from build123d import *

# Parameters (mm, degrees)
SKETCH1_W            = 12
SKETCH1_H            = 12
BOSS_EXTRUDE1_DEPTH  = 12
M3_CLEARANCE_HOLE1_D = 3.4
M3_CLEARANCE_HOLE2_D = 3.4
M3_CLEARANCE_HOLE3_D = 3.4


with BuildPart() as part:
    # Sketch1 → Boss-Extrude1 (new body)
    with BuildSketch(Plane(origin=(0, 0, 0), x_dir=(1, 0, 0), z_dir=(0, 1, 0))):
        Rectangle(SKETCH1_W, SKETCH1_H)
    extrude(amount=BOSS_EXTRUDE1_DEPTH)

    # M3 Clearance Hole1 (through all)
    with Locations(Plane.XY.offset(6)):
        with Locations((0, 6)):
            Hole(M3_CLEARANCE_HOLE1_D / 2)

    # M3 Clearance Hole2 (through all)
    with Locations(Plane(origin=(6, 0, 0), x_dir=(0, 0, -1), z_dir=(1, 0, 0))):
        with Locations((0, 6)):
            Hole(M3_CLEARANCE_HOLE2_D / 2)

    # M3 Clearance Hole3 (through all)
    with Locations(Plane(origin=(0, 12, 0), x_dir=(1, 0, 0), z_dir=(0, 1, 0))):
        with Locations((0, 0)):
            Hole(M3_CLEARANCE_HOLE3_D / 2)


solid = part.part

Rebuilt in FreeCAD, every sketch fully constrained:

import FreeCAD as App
import Part
import Sketcher

V = App.Vector
Q = App.Units.Quantity


def add_polygon(sketch, points):
    """Adds a closed chain of lines whose ends are joined by coincident constraints."""
    first, n = sketch.GeometryCount, len(points)
    for a, b in zip(points, points[1:] + points[:1]):
        sketch.addGeometry(Part.LineSegment(App.Vector(*a, 0), App.Vector(*b, 0)), False)
    for i in range(n):
        sketch.addConstraint(Sketcher.Constraint("Coincident", first + i, 2, first + (i + 1) % n, 1))

doc = App.newDocument("Part")
params = doc.addObject("Spreadsheet::Sheet", "Params")
for row, (alias, value) in enumerate([
    ("sketch1_width", "12 mm"),
    ("pad1_length", "12 mm"),
    ("sketch2_diameter", "3.4 mm"),
    ("hole_diameter", "3.4 mm"),
    ("sketch3_diameter", "3.4 mm"),
    ("hole2_diameter", "3.4 mm"),
    ("sketch4_diameter", "3.4 mm"),
    ("hole3_diameter", "3.4 mm"),
], start=1):
    params.set(f"A{row}", alias)
    params.set(f"B{row}", "=" + value)
    params.setAlias(f"B{row}", alias)

body = doc.addObject("PartDesign::Body", "Body")

# Sketch on XZ plane
sketch1 = body.newObject("Sketcher::SketchObject", "Sketch")
sketch1.AttachmentSupport = (doc.getObject("XZ_Plane"), [""])
sketch1.MapMode = "FlatFace"
add_polygon(sketch1, [(-6, -6), (-6, 6), (6, 6), (6, -6)])  # lines 0-3
sketch1.addConstraint(Sketcher.Constraint("Vertical", 0))
sketch1.addConstraint(Sketcher.Constraint("Horizontal", 1))
sketch1.addConstraint(Sketcher.Constraint("Vertical", 2))
sketch1.addConstraint(Sketcher.Constraint("Horizontal", 3))
sketch1.addConstraint(Sketcher.Constraint("Symmetric", 0, 2, 2, 2, -1, 1))
sketch1.addConstraint(Sketcher.Constraint("Equal", 3, 0))
sketch1.addConstraint(Sketcher.Constraint("DistanceX", 1, 1, 1, 2, Q("12 mm")))
sketch1.setExpression("Constraints[10]", "Params.sketch1_width")
pad1 = body.newObject("PartDesign::Pad", "Pad")
pad1.Profile = sketch1
pad1.setExpression("Length", "Params.pad1_length")
pad1.Reversed = True

# Sketch on XY plane
sketch2 = body.newObject("Sketcher::SketchObject", "Sketch001")
sketch2.AttachmentSupport = (doc.getObject("XY_Plane"), [""])
sketch2.MapMode = "FlatFace"
sketch2.AttachmentOffset = App.Placement(V(0, 0, 6), App.Rotation())
sketch2.addGeometry(Part.Circle(V(0, 6, 0), V(0, 0, 1), 1.7), False)
sketch2.addConstraint(Sketcher.Constraint("PointOnObject", 0, 3, -2))
sketch2.addConstraint(Sketcher.Constraint("Diameter", 0, Q("3.4 mm")))
sketch2.addConstraint(Sketcher.Constraint("DistanceY", -1, 1, 0, 3, Q("6 mm")))
sketch2.setExpression("Constraints[1]", "Params.sketch2_diameter")
doc.recompute()
hole = body.newObject("PartDesign::Hole", "Hole")
hole.Profile = sketch2
hole.ThreadType = "None"
hole.setExpression("Diameter", "Params.hole_diameter")
hole.DepthType = "ThroughAll"

# Sketch on YZ plane
sketch3 = body.newObject("Sketcher::SketchObject", "Sketch002")
sketch3.AttachmentSupport = (doc.getObject("YZ_Plane"), [""])
sketch3.MapMode = "FlatFace"
sketch3.AttachmentOffset = App.Placement(V(0, 0, 6), App.Rotation())
sketch3.addGeometry(Part.Circle(V(6, 0, 0), V(0, 0, 1), 1.7), False)
sketch3.addConstraint(Sketcher.Constraint("PointOnObject", 0, 3, -1))
sketch3.addConstraint(Sketcher.Constraint("Diameter", 0, Q("3.4 mm")))
sketch3.addConstraint(Sketcher.Constraint("DistanceX", -1, 1, 0, 3, Q("6 mm")))
sketch3.setExpression("Constraints[1]", "Params.sketch3_diameter")
doc.recompute()
hole2 = body.newObject("PartDesign::Hole", "Hole001")
hole2.Profile = sketch3
hole2.ThreadType = "None"
hole2.setExpression("Diameter", "Params.hole2_diameter")
hole2.DepthType = "ThroughAll"

# Sketch on XZ plane
sketch4 = body.newObject("Sketcher::SketchObject", "Sketch003")
sketch4.AttachmentSupport = (doc.getObject("XZ_Plane"), [""])
sketch4.MapMode = "FlatFace"
sketch4.AttachmentOffset = App.Placement(V(0, 0, -12), App.Rotation())
sketch4.addGeometry(Part.Circle(V(0, 0, 0), V(0, 0, 1), 1.7), False)
sketch4.addConstraint(Sketcher.Constraint("Coincident", 0, 3, -1, 1))
sketch4.addConstraint(Sketcher.Constraint("Diameter", 0, Q("3.4 mm")))
sketch4.setExpression("Constraints[1]", "Params.sketch4_diameter")
doc.recompute()
hole3 = body.newObject("PartDesign::Hole", "Hole002")
hole3.Profile = sketch4
hole3.ThreadType = "None"
hole3.setExpression("Diameter", "Params.hole3_diameter")
hole3.DepthType = "ThroughAll"
hole3.Reversed = True

doc.recompute()
